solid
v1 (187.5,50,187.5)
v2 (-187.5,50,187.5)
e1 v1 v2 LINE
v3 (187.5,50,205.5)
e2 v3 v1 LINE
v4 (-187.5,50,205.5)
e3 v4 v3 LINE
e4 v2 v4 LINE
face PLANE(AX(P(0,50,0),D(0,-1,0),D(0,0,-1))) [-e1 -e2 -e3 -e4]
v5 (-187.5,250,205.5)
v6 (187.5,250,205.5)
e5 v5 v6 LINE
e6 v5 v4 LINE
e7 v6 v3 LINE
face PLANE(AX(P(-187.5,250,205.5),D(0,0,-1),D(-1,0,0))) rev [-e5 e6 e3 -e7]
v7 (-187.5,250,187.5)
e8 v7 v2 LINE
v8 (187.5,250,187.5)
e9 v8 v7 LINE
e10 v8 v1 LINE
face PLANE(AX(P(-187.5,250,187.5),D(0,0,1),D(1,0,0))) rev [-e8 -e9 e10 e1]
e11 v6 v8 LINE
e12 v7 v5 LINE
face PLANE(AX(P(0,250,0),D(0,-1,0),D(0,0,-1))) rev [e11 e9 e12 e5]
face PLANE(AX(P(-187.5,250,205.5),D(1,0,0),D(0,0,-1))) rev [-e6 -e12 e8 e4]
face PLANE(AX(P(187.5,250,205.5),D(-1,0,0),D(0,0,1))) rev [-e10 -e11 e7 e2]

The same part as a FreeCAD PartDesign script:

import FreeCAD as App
import Part
import Sketcher

doc = App.newDocument("Part")
body = doc.addObject("PartDesign::Body", "Body")

# Sketch on XZ plane
sketch1 = doc.addObject("Sketcher::SketchObject", "Sketch")
body.addObject(sketch1)
sketch1.AttachmentSupport = (doc.XZ_Plane, [""])
sketch1.MapMode = "FlatFace"
sketch1.AttachmentOffset = App.Placement(App.Vector(0, 0, -50), App.Rotation())
sketch1.addGeometry(Part.LineSegment(App.Vector(-187.5, 187.5, 0), App.Vector(-187.5, 205.5, 0)), False)
sketch1.addGeometry(Part.LineSegment(App.Vector(-187.5, 205.5, 0), App.Vector(187.5, 205.5, 0)), False)
sketch1.addGeometry(Part.LineSegment(App.Vector(187.5, 205.5, 0), App.Vector(187.5, 187.5, 0)), False)
sketch1.addGeometry(Part.LineSegment(App.Vector(187.5, 187.5, 0), App.Vector(-187.5, 187.5, 0)), False)
sketch1.addConstraint(Sketcher.Constraint("Coincident", 0, 2, 1, 1))
sketch1.addConstraint(Sketcher.Constraint("Coincident", 1, 2, 2, 1))
sketch1.addConstraint(Sketcher.Constraint("Coincident", 2, 2, 3, 1))
sketch1.addConstraint(Sketcher.Constraint("Coincident", 3, 2, 0, 1))
sketch1.addConstraint(Sketcher.Constraint("Vertical", 0))
sketch1.addConstraint(Sketcher.Constraint("Horizontal", 1))
sketch1.addConstraint(Sketcher.Constraint("Vertical", 2))
sketch1.addConstraint(Sketcher.Constraint("Horizontal", 3))
sketch1.addConstraint(Sketcher.Constraint("DistanceX", 1, 1, 1, 2, 375.0))
sketch1.addConstraint(Sketcher.Constraint("DistanceY", 0, 1, 0, 2, 18.0))
sketch1.addConstraint(Sketcher.Constraint("DistanceX", 0, 2, -1, 1, 187.5))
sketch1.addConstraint(Sketcher.Constraint("DistanceY", -1, 1, 0, 2, 205.5))
pad1 = doc.addObject("PartDesign::Pad", "Pad")
body.addObject(pad1)
pad1.Profile = sketch1
pad1.Length = 200
pad1.Reversed = True

doc.recompute()
